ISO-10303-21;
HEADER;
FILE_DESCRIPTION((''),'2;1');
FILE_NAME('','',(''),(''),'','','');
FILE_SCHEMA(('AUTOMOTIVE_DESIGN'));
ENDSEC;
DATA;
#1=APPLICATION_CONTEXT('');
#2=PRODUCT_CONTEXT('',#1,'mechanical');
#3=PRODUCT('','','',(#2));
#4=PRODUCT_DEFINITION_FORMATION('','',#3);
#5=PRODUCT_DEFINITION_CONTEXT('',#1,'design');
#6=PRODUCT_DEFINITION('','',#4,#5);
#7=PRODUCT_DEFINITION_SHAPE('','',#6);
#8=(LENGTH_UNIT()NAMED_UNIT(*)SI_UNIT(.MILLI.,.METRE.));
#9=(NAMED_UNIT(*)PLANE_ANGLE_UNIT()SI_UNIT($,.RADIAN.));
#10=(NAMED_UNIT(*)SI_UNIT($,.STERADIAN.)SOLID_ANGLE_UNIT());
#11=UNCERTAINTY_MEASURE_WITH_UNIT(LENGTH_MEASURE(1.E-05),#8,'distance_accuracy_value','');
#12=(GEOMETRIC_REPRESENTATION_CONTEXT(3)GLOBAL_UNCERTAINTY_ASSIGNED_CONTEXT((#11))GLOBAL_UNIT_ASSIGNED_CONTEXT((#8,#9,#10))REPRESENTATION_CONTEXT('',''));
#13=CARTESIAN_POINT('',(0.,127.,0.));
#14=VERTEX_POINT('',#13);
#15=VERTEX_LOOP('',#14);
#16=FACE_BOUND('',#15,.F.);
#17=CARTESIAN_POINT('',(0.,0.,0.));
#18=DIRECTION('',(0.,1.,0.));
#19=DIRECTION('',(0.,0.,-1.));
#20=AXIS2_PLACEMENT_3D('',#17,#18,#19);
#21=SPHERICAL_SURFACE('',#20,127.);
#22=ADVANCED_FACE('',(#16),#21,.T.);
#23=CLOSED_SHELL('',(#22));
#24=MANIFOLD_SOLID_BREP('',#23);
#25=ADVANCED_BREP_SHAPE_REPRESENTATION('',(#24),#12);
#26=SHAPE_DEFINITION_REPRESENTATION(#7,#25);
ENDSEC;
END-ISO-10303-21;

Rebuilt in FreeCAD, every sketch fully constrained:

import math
import FreeCAD as App
import Part
import Sketcher

V = App.Vector
Q = App.Units.Quantity

doc = App.newDocument("Part")
body = doc.addObject("PartDesign::Body", "Body")

# Sketch on YZ plane
sketch1 = body.newObject("Sketcher::SketchObject", "Sketch")
sketch1.AttachmentSupport = (doc.getObject("YZ_Plane"), [""])
sketch1.MapMode = "FlatFace"
sketch1.addGeometry([
    Part.LineSegment(V(127, 0, 0), V(-127, 0, 0)),
    Part.ArcOfCircle(Part.Circle(V(0, 0, 0), V(0, 0, 1), 127), math.radians(180), math.radians(360)),
], False)
sketch1.addConstraint([
    Sketcher.Constraint("Coincident", 0, 1, 1, 2),
    Sketcher.Constraint("Coincident", 1, 1, 0, 2),
    Sketcher.Constraint("Horizontal", 0),
    Sketcher.Constraint("Coincident", 1, 3, -1, 1),
    Sketcher.Constraint("PointOnObject", 0, 1, -1),
    Sketcher.Constraint("Radius", 1, Q("5 in")),
])
revolution = body.newObject("PartDesign::Revolution", "Revolution")
revolution.Profile = sketch1
revolution.ReferenceAxis = (sketch1, ["H_Axis"])
revolution.Angle = 360

doc.recompute()
